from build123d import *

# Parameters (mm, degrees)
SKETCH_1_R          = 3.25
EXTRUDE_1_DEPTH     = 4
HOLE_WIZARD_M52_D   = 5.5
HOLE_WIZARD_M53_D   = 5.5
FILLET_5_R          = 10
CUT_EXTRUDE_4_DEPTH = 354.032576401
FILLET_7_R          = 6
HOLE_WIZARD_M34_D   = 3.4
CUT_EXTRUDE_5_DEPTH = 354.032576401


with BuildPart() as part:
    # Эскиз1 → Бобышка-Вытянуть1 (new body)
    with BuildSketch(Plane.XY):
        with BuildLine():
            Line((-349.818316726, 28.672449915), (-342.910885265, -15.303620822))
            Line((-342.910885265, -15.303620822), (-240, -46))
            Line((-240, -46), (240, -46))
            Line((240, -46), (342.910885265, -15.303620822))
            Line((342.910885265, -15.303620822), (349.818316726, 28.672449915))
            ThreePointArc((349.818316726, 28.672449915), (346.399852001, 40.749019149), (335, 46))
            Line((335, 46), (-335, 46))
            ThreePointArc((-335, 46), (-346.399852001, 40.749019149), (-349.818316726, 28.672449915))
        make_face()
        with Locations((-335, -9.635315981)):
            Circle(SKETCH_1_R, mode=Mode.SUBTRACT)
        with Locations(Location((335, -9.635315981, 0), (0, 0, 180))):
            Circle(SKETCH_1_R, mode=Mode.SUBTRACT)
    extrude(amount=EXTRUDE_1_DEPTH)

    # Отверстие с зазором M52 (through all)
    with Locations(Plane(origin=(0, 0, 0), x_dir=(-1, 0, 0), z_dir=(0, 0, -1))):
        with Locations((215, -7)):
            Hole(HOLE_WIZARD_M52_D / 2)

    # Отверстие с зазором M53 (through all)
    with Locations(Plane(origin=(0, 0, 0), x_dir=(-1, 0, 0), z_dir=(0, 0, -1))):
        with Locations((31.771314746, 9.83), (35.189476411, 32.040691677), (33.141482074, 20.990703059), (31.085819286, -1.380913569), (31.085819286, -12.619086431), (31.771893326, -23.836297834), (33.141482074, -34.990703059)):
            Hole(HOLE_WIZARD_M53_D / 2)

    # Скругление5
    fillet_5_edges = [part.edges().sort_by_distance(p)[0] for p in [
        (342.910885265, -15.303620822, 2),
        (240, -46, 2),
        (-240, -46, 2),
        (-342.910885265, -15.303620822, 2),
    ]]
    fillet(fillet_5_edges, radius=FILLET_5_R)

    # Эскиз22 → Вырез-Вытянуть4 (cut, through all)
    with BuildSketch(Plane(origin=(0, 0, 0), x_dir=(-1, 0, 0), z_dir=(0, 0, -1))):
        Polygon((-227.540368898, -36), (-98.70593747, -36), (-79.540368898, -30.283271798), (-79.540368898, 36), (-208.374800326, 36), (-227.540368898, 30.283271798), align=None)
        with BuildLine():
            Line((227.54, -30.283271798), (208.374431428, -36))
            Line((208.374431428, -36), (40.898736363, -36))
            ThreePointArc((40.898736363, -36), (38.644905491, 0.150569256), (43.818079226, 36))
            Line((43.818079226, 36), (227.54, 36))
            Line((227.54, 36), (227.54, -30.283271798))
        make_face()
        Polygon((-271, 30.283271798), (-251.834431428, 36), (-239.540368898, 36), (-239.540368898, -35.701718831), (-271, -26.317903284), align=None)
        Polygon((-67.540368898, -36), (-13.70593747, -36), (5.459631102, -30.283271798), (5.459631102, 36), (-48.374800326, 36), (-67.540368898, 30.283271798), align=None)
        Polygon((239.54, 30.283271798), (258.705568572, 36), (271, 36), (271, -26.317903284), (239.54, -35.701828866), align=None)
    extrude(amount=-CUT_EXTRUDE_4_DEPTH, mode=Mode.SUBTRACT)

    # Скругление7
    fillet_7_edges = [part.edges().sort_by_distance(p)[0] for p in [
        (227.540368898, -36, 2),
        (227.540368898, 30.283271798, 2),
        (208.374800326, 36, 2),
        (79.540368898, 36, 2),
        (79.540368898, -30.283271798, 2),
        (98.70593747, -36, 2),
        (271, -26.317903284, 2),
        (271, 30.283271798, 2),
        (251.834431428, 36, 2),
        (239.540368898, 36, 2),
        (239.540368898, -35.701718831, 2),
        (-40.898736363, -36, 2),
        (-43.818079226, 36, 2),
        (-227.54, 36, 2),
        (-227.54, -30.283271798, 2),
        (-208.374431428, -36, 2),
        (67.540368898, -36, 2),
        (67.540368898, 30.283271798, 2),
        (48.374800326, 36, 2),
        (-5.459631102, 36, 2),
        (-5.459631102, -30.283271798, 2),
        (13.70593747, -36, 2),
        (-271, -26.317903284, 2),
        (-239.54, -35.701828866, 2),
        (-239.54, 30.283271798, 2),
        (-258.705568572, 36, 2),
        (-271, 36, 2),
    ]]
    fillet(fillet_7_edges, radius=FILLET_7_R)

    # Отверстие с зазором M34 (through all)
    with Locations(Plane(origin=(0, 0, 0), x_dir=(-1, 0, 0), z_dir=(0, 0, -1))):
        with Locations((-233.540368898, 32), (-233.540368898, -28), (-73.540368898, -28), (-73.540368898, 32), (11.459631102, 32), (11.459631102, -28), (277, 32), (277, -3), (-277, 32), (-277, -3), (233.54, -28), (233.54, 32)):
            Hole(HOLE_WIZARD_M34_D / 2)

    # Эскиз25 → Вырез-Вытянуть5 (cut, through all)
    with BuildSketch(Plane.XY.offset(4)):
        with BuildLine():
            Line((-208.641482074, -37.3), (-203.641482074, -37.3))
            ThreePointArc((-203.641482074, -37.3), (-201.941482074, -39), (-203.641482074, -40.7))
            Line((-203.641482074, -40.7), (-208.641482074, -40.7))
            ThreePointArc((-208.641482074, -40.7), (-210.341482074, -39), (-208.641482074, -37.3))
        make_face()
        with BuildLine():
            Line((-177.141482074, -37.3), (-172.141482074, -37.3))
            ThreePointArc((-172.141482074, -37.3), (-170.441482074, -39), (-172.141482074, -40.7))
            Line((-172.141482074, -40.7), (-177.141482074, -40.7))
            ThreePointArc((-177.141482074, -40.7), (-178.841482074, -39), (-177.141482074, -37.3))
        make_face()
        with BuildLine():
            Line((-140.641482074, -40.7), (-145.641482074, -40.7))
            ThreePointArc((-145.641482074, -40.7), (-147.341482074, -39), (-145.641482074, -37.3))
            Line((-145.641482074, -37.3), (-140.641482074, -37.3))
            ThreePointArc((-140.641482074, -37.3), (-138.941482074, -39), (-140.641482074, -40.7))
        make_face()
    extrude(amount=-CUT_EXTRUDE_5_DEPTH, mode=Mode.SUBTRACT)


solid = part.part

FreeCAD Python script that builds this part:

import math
import FreeCAD as App
import Part
import Sketcher
from FreeCAD import Vector


def edges_at(feature, points):
    """Names of the edges that pass closest to the given points."""
    edges = feature.Shape.Edges
    near = lambda p: min(range(len(edges)), key=lambda i: edges[i].distToShape(Part.Vertex(*p))[0])
    return sorted({f"Edge{near(p) + 1}" for p in points})


def add_polygon(sketch, points):
    """Adds a closed chain of lines whose ends are joined by coincident constraints."""
    first, n = sketch.GeometryCount, len(points)
    for a, b in zip(points, points[1:] + points[:1]):
        sketch.addGeometry(Part.LineSegment(App.Vector(*a, 0), App.Vector(*b, 0)), False)
    for i in range(n):
        sketch.addConstraint(Sketcher.Constraint("Coincident", first + i, 2, first + (i + 1) % n, 1))

doc = App.newDocument("Part")
body = doc.addObject("PartDesign::Body", "Body")

sketch1 = body.newObject("Sketcher::SketchObject", "Sketch")
sketch1.AttachmentSupport = (doc.getObject("XY_Plane"), [""])
sketch1.MapMode = "FlatFace"
sketch1.addGeometry(Part.LineSegment(Vector(-349.8, 28.7, 0), Vector(-342.9, -15.3, 0)), False)
sketch1.addGeometry(Part.LineSegment(Vector(-342.9, -15.3, 0), Vector(-240, -46, 0)), False)
sketch1.addGeometry(Part.LineSegment(Vector(-240, -46, 0), Vector(240, -46, 0)), False)
sketch1.addGeometry(Part.LineSegment(Vector(240, -46, 0), Vector(342.9, -15.3, 0)), False)
sketch1.addGeometry(Part.LineSegment(Vector(342.9, -15.3, 0), Vector(349.8, 28.7, 0)), False)
sketch1.addGeometry(Part.ArcOfCircle(Part.Circle(Vector(335, 31, 0), Vector(0, 0, 1), 15), math.radians(-9), math.radians(90)), False)
sketch1.addGeometry(Part.LineSegment(Vector(335, 46, 0), Vector(-335, 46, 0)), False)
sketch1.addGeometry(Part.ArcOfCircle(Part.Circle(Vector(-335, 31, 0), Vector(0, 0, 1), 15), math.radians(90), math.radians(189)), False)
sketch1.addGeometry(Part.Circle(Vector(-335, -9.6, 0), Vector(0, 0, 1), 3.2), False)
sketch1.addGeometry(Part.Circle(Vector(335, -9.6, 0), Vector(0, 0, 1), 3.2), False)
sketch1.addConstraint(Sketcher.Constraint("Coincident", 0, 2, 1, 1))
sketch1.addConstraint(Sketcher.Constraint("Coincident", 1, 2, 2, 1))
sketch1.addConstraint(Sketcher.Constraint("Coincident", 2, 2, 3, 1))
sketch1.addConstraint(Sketcher.Constraint("Coincident", 3, 2, 4, 1))
sketch1.addConstraint(Sketcher.Constraint("Tangent", 4, 2, 5, 1))
sketch1.addConstraint(Sketcher.Constraint("Tangent", 5, 2, 6, 1))
sketch1.addConstraint(Sketcher.Constraint("Tangent", 6, 2, 7, 1))
sketch1.addConstraint(Sketcher.Constraint("Tangent", 7, 2, 0, 1))
sketch1.addConstraint(Sketcher.Constraint("Horizontal", 2))
sketch1.addConstraint(Sketcher.Constraint("Horizontal", 6))
sketch1.addConstraint(Sketcher.Constraint("Equal", 5, 7))
sketch1.addConstraint(Sketcher.Constraint("Equal", 8, 9))
sketch1.addConstraint(Sketcher.Constraint("Symmetric", 8, 3, 9, 3, -2))
sketch1.addConstraint(Sketcher.Constraint("Symmetric", 0, 2, 3, 2, -2))
sketch1.addConstraint(Sketcher.Constraint("Horizontal", 4, 2, 7, 2))
sketch1.addConstraint(Sketcher.Constraint("Vertical", 7, 3, 8, 3))
sketch1.addConstraint(Sketcher.Constraint("Equal", 1, 3))
sketch1.addConstraint(Sketcher.Constraint("Radius", 5, 15.0))
sketch1.addConstraint(Sketcher.Constraint("Diameter", 8, 6.5))
sketch1.addConstraint(Sketcher.Constraint("DistanceX", 2, 1, 2, 2, 480.0))
sketch1.addConstraint(Sketcher.Constraint("DistanceX", 6, 2, 6, 1, 670.0))
sketch1.addConstraint(Sketcher.Constraint("DistanceY", -1, 1, 5, 3, 31.0))
sketch1.addConstraint(Sketcher.Constraint("DistanceY", 1, 2, -1, 1, 46.0))
sketch1.addConstraint(Sketcher.Constraint("Distance", 0, 44.515249))
sketch1.addConstraint(Sketcher.Constraint("DistanceY", 0, 2, -1, 1, 15.303621))
sketch1.addConstraint(Sketcher.Constraint("DistanceY", 8, 3, -1, 1, 9.635316))
pad1 = body.newObject("PartDesign::Pad", "Pad")
pad1.Profile = sketch1
pad1.Length = 4

sketch2 = body.newObject("Sketcher::SketchObject", "Sketch001")
sketch2.AttachmentSupport = (doc.getObject("XY_Plane"), [""])
sketch2.MapMode = "FlatFace"
sketch2.addGeometry(Part.Circle(Vector(-215, -7, 0), Vector(0, 0, 1), 2.8), False)
sketch2.addConstraint(Sketcher.Constraint("Diameter", 0, 5.5))
sketch2.addConstraint(Sketcher.Constraint("DistanceX", 0, 3, -1, 1, 215.0))
sketch2.addConstraint(Sketcher.Constraint("DistanceY", 0, 3, -1, 1, 7.0))
doc.recompute()
hole = body.newObject("PartDesign::Hole", "Hole")
hole.Profile = sketch2
hole.ThreadType = "None"
hole.Diameter = 5.5
hole.DepthType = "ThroughAll"
hole.Reversed = True

sketch3 = body.newObject("Sketcher::SketchObject", "Sketch002")
sketch3.AttachmentSupport = (doc.getObject("XY_Plane"), [""])
sketch3.MapMode = "FlatFace"
sketch3.addGeometry(Part.Circle(Vector(-31.8, 9.8, 0), Vector(0, 0, 1), 2.8), False)
sketch3.addGeometry(Part.Circle(Vector(-35.2, 32, 0), Vector(0, 0, 1), 2.8), False)
sketch3.addGeometry(Part.Circle(Vector(-33.1, 21, 0), Vector(0, 0, 1), 2.8), False)
sketch3.addGeometry(Part.Circle(Vector(-31.1, -1.4, 0), Vector(0, 0, 1), 2.8), False)
sketch3.addGeometry(Part.Circle(Vector(-31.1, -12.6, 0), Vector(0, 0, 1), 2.8), False)
sketch3.addGeometry(Part.Circle(Vector(-31.8, -23.8, 0), Vector(0, 0, 1), 2.8), False)
sketch3.addGeometry(Part.Circle(Vector(-33.1, -35, 0), Vector(0, 0, 1), 2.8), False)
sketch3.addConstraint(Sketcher.Constraint("Equal", 0, 1))
sketch3.addConstraint(Sketcher.Constraint("Equal", 1, 2))
sketch3.addConstraint(Sketcher.Constraint("Equal", 2, 3))
sketch3.addConstraint(Sketcher.Constraint("Equal", 3, 4))
sketch3.addConstraint(Sketcher.Constraint("Equal", 4, 5))
sketch3.addConstraint(Sketcher.Constraint("Equal", 5, 6))
sketch3.addConstraint(Sketcher.Constraint("Vertical", 3, 3, 4, 3))
sketch3.addConstraint(Sketcher.Constraint("Vertical", 2, 3, 6, 3))
sketch3.addConstraint(Sketcher.Constraint("Diameter", 0, 5.5))
sketch3.addConstraint(Sketcher.Constraint("DistanceY", -1, 1, 0, 3, 9.83))
sketch3.addConstraint(Sketcher.Constraint("DistanceY", 5, 3, 2, 3, 44.827001))
sketch3.addConstraint(Sketcher.Constraint("DistanceY", -1, 1, 1, 3, 32.040692))
sketch3.addConstraint(Sketcher.Constraint("DistanceX", 3, 3, -1, 1, 31.085819))
sketch3.addConstraint(Sketcher.Constraint("DistanceX", 1, 3, 0, 3, 3.418162))
sketch3.addConstraint(Sketcher.Constraint("DistanceY", 2, 3, 1, 3, 11.049989))
sketch3.addConstraint(Sketcher.Constraint("DistanceY", 4, 3, 2, 3, 33.609789))
sketch3.addConstraint(Sketcher.Constraint("DistanceX", 5, 3, 0, 3, 0.000579))
sketch3.addConstraint(Sketcher.Constraint("DistanceX", 2, 3, 5, 3, 1.369589))
sketch3.addConstraint(Sketcher.Constraint("DistanceY", 6, 3, 3, 3, 33.609789))
sketch3.addConstraint(Sketcher.Constraint("DistanceX", 0, 3, -1, 1, 31.771315))
sketch3.addConstraint(Sketcher.Constraint("DistanceY", 3, 3, -1, 1, 1.380914))
doc.recompute()
hole2 = body.newObject("PartDesign::Hole", "Hole001")
hole2.Profile = sketch3
hole2.ThreadType = "None"
hole2.Diameter = 5.5
hole2.DepthType = "ThroughAll"
hole2.Reversed = True
doc.recompute()

fillet = body.newObject("PartDesign::Fillet", "Fillet")
fillet.Base = (hole2, edges_at(hole2, [
    (342.911, -15.304, 2),
    (240, -46, 2),
    (-240, -46, 2),
    (-342.911, -15.304, 2),
]))
fillet.Radius = 10

sketch4 = body.newObject("Sketcher::SketchObject", "Sketch003")
sketch4.AttachmentSupport = (doc.getObject("XY_Plane"), [""])
sketch4.MapMode = "FlatFace"
add_polygon(sketch4, [(228, -36), (99, -36), (80, -30), (80, 36), (208, 36), (228, 30)])
sketch4.addGeometry(Part.LineSegment(Vector(-208, -36, 0), Vector(-228, -30, 0)), False)
sketch4.addGeometry(Part.LineSegment(Vector(-228, -30, 0), Vector(-228, 36, 0)), False)
sketch4.addGeometry(Part.LineSegment(Vector(-228, 36, 0), Vector(-44, 36, 0)), False)
sketch4.addGeometry(Part.ArcOfCircle(Part.Circle(Vector(-215, -7, 0), Vector(0, 0, 1), 176), math.radians(-9), math.radians(14)), False)
sketch4.addGeometry(Part.LineSegment(Vector(-41, -36, 0), Vector(-208, -36, 0)), False)
add_polygon(sketch4, [(252, 36), (271, 30), (271, -26), (240, -36), (240, 36)])
add_polygon(sketch4, [(68, -36), (14, -36), (-5, -30), (-5, 36), (48, 36), (68, 30)])
add_polygon(sketch4, [(-259, 36), (-240, 30), (-240, -36), (-271, -26), (-271, 36)])
sketch4.addConstraint(Sketcher.Constraint("Coincident", 6, 2, 7, 1))
sketch4.addConstraint(Sketcher.Constraint("Coincident", 7, 2, 8, 1))
sketch4.addConstraint(Sketcher.Constraint("Coincident", 8, 2, 9, 2))
sketch4.addConstraint(Sketcher.Constraint("Coincident", 9, 1, 10, 1))
sketch4.addConstraint(Sketcher.Constraint("Coincident", 10, 2, 6, 1))
sketch4.addConstraint(Sketcher.Constraint("Horizontal", 0))
sketch4.addConstraint(Sketcher.Constraint("Vertical", 2))
sketch4.addConstraint(Sketcher.Constraint("Horizontal", 3))
sketch4.addConstraint(Sketcher.Constraint("Vertical", 5))
sketch4.addConstraint(Sketcher.Constraint("Vertical", 7))
sketch4.addConstraint(Sketcher.Constraint("Horizontal", 8))
sketch4.addConstraint(Sketcher.Constraint("Horizontal", 10))
sketch4.addConstraint(Sketcher.Constraint("Vertical", 12))
sketch4.addConstraint(Sketcher.Constraint("Vertical", 14))
sketch4.addConstraint(Sketcher.Constraint("Horizontal", 15))
sketch4.addConstraint(Sketcher.Constraint("Horizontal", 16))
sketch4.addConstraint(Sketcher.Constraint("Vertical", 18))
sketch4.addConstraint(Sketcher.Constraint("Horizontal", 19))
sketch4.addConstraint(Sketcher.Constraint("Vertical", 21))
sketch4.addConstraint(Sketcher.Constraint("Vertical", 23))
sketch4.addConstraint(Sketcher.Constraint("Vertical", 25))
sketch4.addConstraint(Sketcher.Constraint("Horizontal", 26))
sketch4.addConstraint(Sketcher.Constraint("Symmetric", 12, 2, 24, 2, -2))
sketch4.addConstraint(Sketcher.Constraint("Parallel", 1, 4))
sketch4.addConstraint(Sketcher.Constraint("Parallel", 4, 6))
sketch4.addConstraint(Sketcher.Constraint("Parallel", 6, 11))
sketch4.addConstraint(Sketcher.Constraint("Parallel", 11, 17))
sketch4.addConstraint(Sketcher.Constraint("Parallel", 17, 20))
sketch4.addConstraint(Sketcher.Constraint("Parallel", 20, 22))
sketch4.addConstraint(Sketcher.Constraint("Parallel", 22, 24))
sketch4.addConstraint(Sketcher.Constraint("Horizontal", 1, 2, 6, 2))
sketch4.addConstraint(Sketcher.Constraint("Horizontal", 3, 2, 7, 2))
sketch4.addConstraint(Sketcher.Constraint("Horizontal", 4, 2, 11, 2))
sketch4.addConstraint(Sketcher.Constraint("Horizontal", 8, 2, 14, 2))
sketch4.addConstraint(Sketcher.Constraint("Horizontal", 10, 2, 16, 2))
sketch4.addConstraint(Sketcher.Constraint("Horizontal", 6, 2, 17, 2))
sketch4.addConstraint(Sketcher.Constraint("Horizontal", 15, 2, 18, 2))
sketch4.addConstraint(Sketcher.Constraint("Horizontal", 11, 2, 20, 2))
sketch4.addConstraint(Sketcher.Constraint("Horizontal", 20, 2, 22, 2))
sketch4.addConstraint(Sketcher.Constraint("Horizontal", 19, 2, 25, 2))
sketch4.addConstraint(Sketcher.Constraint("Equal", 0, 3))
sketch4.addConstraint(Sketcher.Constraint("Equal", 16, 19))
sketch4.addConstraint(Sketcher.Constraint("Radius", 9, 176.5))
sketch4.addConstraint(Sketcher.Constraint("Distance", 1, 20.0))
sketch4.addConstraint(Sketcher.Constraint("DistanceX", 9, 3, -1, 1, 215.0))
sketch4.addConstraint(Sketcher.Constraint("DistanceY", 9, 3, -1, 1, 7.0))
sketch4.addConstraint(Sketcher.Constraint("DistanceY", 0, 2, -1, 1, 36.0))
sketch4.addConstraint(Sketcher.Constraint("DistanceY", -1, 1, 2, 2, 36.0))
sketch4.addConstraint(Sketcher.Constraint("DistanceX", -1, 1, 11, 2, 271.0))
sketch4.addConstraint(Sketcher.Constraint("DistanceX", 2, 2, 4, 2, 148.0))
sketch4.addConstraint(Sketcher.Constraint("DistanceX", 5, 2, 13, 2, 12.0))
sketch4.addConstraint(Sketcher.Constraint("DistanceX", 16, 2, 0, 2, 85.0))
sketch4.addConstraint(Sketcher.Constraint("DistanceX", 20, 2, 2, 2, 12.0))
sketch4.addConstraint(Sketcher.Constraint("DistanceX", 22, 2, 7, 2, 12.0))
sketch4.addConstraint(Sketcher.Constraint("DistanceX", 6, 2, -1, 1, 227.54))
sketch4.addConstraint(Sketcher.Constraint("DistanceY", 23, 2, 23, 1, 65.985101))
sketch4.addConstraint(Sketcher.Constraint("DistanceX", 0, 2, 0, 1, 128.834431))
sketch4.addConstraint(Sketcher.Constraint("DistanceY", 14, 1, 14, 2, 71.701719))
sketch4.addConstraint(Sketcher.Constraint("DistanceX", -1, 1, 3, 2, 208.3748))
pocket1 = body.newObject("PartDesign::Pocket", "Pocket")
pocket1.Profile = sketch4
pocket1.Type = "ThroughAll"
pocket1.Reversed = True
doc.recompute()

fillet2 = body.newObject("PartDesign::Fillet", "Fillet001")
fillet2.Base = (pocket1, edges_at(pocket1, [
    (227.54, -36, 2),
    (227.54, 30.283, 2),
    (208.375, 36, 2),
    (79.54, 36, 2),
    (79.54, -30.283, 2),
    (98.706, -36, 2),
    (271, -26.318, 2),
    (271, 30.283, 2),
    (251.834, 36, 2),
    (239.54, 36, 2),
    (239.54, -35.702, 2),
    (-40.899, -36, 2),
    (-43.818, 36, 2),
    (-227.54, 36, 2),
    (-227.54, -30.283, 2),
    (-208.374, -36, 2),
    (67.54, -36, 2),
    (67.54, 30.283, 2),
    (48.375, 36, 2),
    (-5.46, 36, 2),
    (-5.46, -30.283, 2),
    (13.706, -36, 2),
    (-271, -26.318, 2),
    (-239.54, -35.702, 2),
    (-239.54, 30.283, 2),
    (-258.706, 36, 2),
    (-271, 36, 2),
]))
fillet2.Radius = 6

sketch5 = body.newObject("Sketcher::SketchObject", "Sketch004")
sketch5.AttachmentSupport = (doc.getObject("XY_Plane"), [""])
sketch5.MapMode = "FlatFace"
sketch5.addGeometry(Part.Circle(Vector(233.5, 32, 0), Vector(0, 0, 1), 1.7), False)
sketch5.addGeometry(Part.Circle(Vector(233.5, -28, 0), Vector(0, 0, 1), 1.7), False)
sketch5.addGeometry(Part.Circle(Vector(73.5, -28, 0), Vector(0, 0, 1), 1.7), False)
sketch5.addGeometry(Part.Circle(Vector(73.5, 32, 0), Vector(0, 0, 1), 1.7), False)
sketch5.addGeometry(Part.Circle(Vector(-11.5, 32, 0), Vector(0, 0, 1), 1.7), False)
sketch5.addGeometry(Part.Circle(Vector(-11.5, -28, 0), Vector(0, 0, 1), 1.7), False)
sketch5.addGeometry(Part.Circle(Vector(-277, 32, 0), Vector(0, 0, 1), 1.7), False)
sketch5.addGeometry(Part.Circle(Vector(-277, -3, 0), Vector(0, 0, 1), 1.7), False)
sketch5.addGeometry(Part.Circle(Vector(277, 32, 0), Vector(0, 0, 1), 1.7), False)
sketch5.addGeometry(Part.Circle(Vector(277, -3, 0), Vector(0, 0, 1), 1.7), False)
sketch5.addGeometry(Part.Circle(Vector(-233.5, -28, 0), Vector(0, 0, 1), 1.7), False)
sketch5.addGeometry(Part.Circle(Vector(-233.5, 32, 0), Vector(0, 0, 1), 1.7), False)
sketch5.addConstraint(Sketcher.Constraint("Equal", 0, 1))
sketch5.addConstraint(Sketcher.Constraint("Equal", 1, 2))
sketch5.addConstraint(Sketcher.Constraint("Equal", 2, 3))
sketch5.addConstraint(Sketcher.Constraint("Equal", 3, 4))
sketch5.addConstraint(Sketcher.Constraint("Equal", 4, 5))
sketch5.addConstraint(Sketcher.Constraint("Equal", 5, 6))
sketch5.addConstraint(Sketcher.Constraint("Equal", 6, 7))
sketch5.addConstraint(Sketcher.Constraint("Equal", 7, 8))
sketch5.addConstraint(Sketcher.Constraint("Equal", 8, 9))
sketch5.addConstraint(Sketcher.Constraint("Equal", 9, 10))
sketch5.addConstraint(Sketcher.Constraint("Equal", 10, 11))
sketch5.addConstraint(Sketcher.Constraint("Symmetric", 6, 3, 8, 3, -2))
sketch5.addConstraint(Sketcher.Constraint("Symmetric", 7, 3, 9, 3, -2))
sketch5.addConstraint(Sketcher.Constraint("Horizontal", 1, 3, 2, 3))
sketch5.addConstraint(Sketcher.Constraint("Horizontal", 0, 3, 3, 3))
sketch5.addConstraint(Sketcher.Constraint("Horizontal", 3, 3, 4, 3))
sketch5.addConstraint(Sketcher.Constraint("Horizontal", 2, 3, 5, 3))
sketch5.addConstraint(Sketcher.Constraint("Horizontal", 4, 3, 6, 3))
sketch5.addConstraint(Sketcher.Constraint("Horizontal", 5, 3, 10, 3))
sketch5.addConstraint(Sketcher.Constraint("Horizontal", 8, 3, 11, 3))
sketch5.addConstraint(Sketcher.Constraint("Vertical", 0, 3, 1, 3))
sketch5.addConstraint(Sketcher.Constraint("Vertical", 2, 3, 3, 3))
sketch5.addConstraint(Sketcher.Constraint("Vertical", 4, 3, 5, 3))
sketch5.addConstraint(Sketcher.Constraint("Vertical", 6, 3, 7, 3))
sketch5.addConstraint(Sketcher.Constraint("Vertical", 10, 3, 11, 3))
sketch5.addConstraint(Sketcher.Constraint("Diameter", 0, 3.4))
sketch5.addConstraint(Sketcher.Constraint("DistanceY", -1, 1, 0, 3, 32.0))
sketch5.addConstraint(Sketcher.Constraint("DistanceY", 1, 3, -1, 1, 28.0))
sketch5.addConstraint(Sketcher.Constraint("DistanceX", 6, 3, -1, 1, 277.0))
sketch5.addConstraint(Sketcher.Constraint("DistanceY", 7, 3, -1, 1, 3.0))
sketch5.addConstraint(Sketcher.Constraint("DistanceX", 2, 3, 1, 3, 160.0))
sketch5.addConstraint(Sketcher.Constraint("DistanceX", 4, 3, 3, 3, 85.0))
sketch5.addConstraint(Sketcher.Constraint("DistanceX", 10, 3, -1, 1, 233.54))
sketch5.addConstraint(Sketcher.Constraint("DistanceX", -1, 1, 0, 3, 233.540369))
doc.recompute()
hole3 = body.newObject("PartDesign::Hole", "Hole002")
hole3.Profile = sketch5
hole3.ThreadType = "None"
hole3.Diameter = 3.4
hole3.DepthType = "ThroughAll"
hole3.Reversed = True

sketch6 = body.newObject("Sketcher::SketchObject", "Sketch005")
sketch6.AttachmentSupport = (doc.getObject("XY_Plane"), [""])
sketch6.MapMode = "FlatFace"
sketch6.AttachmentOffset = App.Placement(Vector(0, 0, 4), App.Rotation())
sketch6.addGeometry(Part.LineSegment(Vector(-203.6, -37.3, 0), Vector(-208.6, -37.3, 0)), False)
sketch6.addGeometry(Part.ArcOfCircle(Part.Circle(Vector(-208.6, -39, 0), Vector(0, 0, 1), 1.7), math.radians(90), math.radians(270)), False)
sketch6.addGeometry(Part.LineSegment(Vector(-208.6, -40.7, 0), Vector(-203.6, -40.7, 0)), False)
sketch6.addGeometry(Part.ArcOfCircle(Part.Circle(Vector(-203.6, -39, 0), Vector(0, 0, 1), 1.7), math.radians(-90), math.radians(90)), False)
sketch6.addGeometry(Part.LineSegment(Vector(-172.1, -37.3, 0), Vector(-177.1, -37.3, 0)), False)
sketch6.addGeometry(Part.ArcOfCircle(Part.Circle(Vector(-177.1, -39, 0), Vector(0, 0, 1), 1.7), math.radians(90), math.radians(270)), False)
sketch6.addGeometry(Part.LineSegment(Vector(-177.1, -40.7, 0), Vector(-172.1, -40.7, 0)), False)
sketch6.addGeometry(Part.ArcOfCircle(Part.Circle(Vector(-172.1, -39, 0), Vector(0, 0, 1), 1.7), math.radians(-90), math.radians(90)), False)
sketch6.addGeometry(Part.LineSegment(Vector(-145.6, -40.7, 0), Vector(-140.6, -40.7, 0)), False)
sketch6.addGeometry(Part.ArcOfCircle(Part.Circle(Vector(-140.6, -39, 0), Vector(0, 0, 1), 1.7), math.radians(-90), math.radians(90)), False)
sketch6.addGeometry(Part.LineSegment(Vector(-140.6, -37.3, 0), Vector(-145.6, -37.3, 0)), False)
sketch6.addGeometry(Part.ArcOfCircle(Part.Circle(Vector(-145.6, -39, 0), Vector(0, 0, 1), 1.7), math.radians(90), math.radians(270)), False)
sketch6.addConstraint(Sketcher.Constraint("Tangent", 0, 2, 1, 1))
sketch6.addConstraint(Sketcher.Constraint("Tangent", 1, 2, 2, 1))
sketch6.addConstraint(Sketcher.Constraint("Tangent", 2, 2, 3, 1))
sketch6.addConstraint(Sketcher.Constraint("Tangent", 3, 2, 0, 1))
sketch6.addConstraint(Sketcher.Constraint("Tangent", 4, 2, 5, 1))
sketch6.addConstraint(Sketcher.Constraint("Tangent", 5, 2, 6, 1))
sketch6.addConstraint(Sketcher.Constraint("Tangent", 6, 2, 7, 1))
sketch6.addConstraint(Sketcher.Constraint("Tangent", 7, 2, 4, 1))
sketch6.addConstraint(Sketcher.Constraint("Tangent", 8, 2, 9, 1))
sketch6.addConstraint(Sketcher.Constraint("Tangent", 9, 2, 10, 1))
sketch6.addConstraint(Sketcher.Constraint("Tangent", 10, 2, 11, 1))
sketch6.addConstraint(Sketcher.Constraint("Tangent", 11, 2, 8, 1))
sketch6.addConstraint(Sketcher.Constraint("Horizontal", 0))
sketch6.addConstraint(Sketcher.Constraint("Horizontal", 2))
sketch6.addConstraint(Sketcher.Constraint("Horizontal", 4))
sketch6.addConstraint(Sketcher.Constraint("Horizontal", 6))
sketch6.addConstraint(Sketcher.Constraint("Horizontal", 8))
sketch6.addConstraint(Sketcher.Constraint("Horizontal", 10))
sketch6.addConstraint(Sketcher.Constraint("Equal", 3, 5))
sketch6.addConstraint(Sketcher.Constraint("Equal", 7, 9))
sketch6.addConstraint(Sketcher.Constraint("Horizontal", 3, 3, 5, 3))
sketch6.addConstraint(Sketcher.Constraint("Horizontal", 7, 3, 9, 3))
sketch6.addConstraint(Sketcher.Constraint("Equal", 2, 4))
sketch6.addConstraint(Sketcher.Constraint("Equal", 6, 8))
sketch6.addConstraint(Sketcher.Constraint("Radius", 1, 1.7))
sketch6.addConstraint(Sketcher.Constraint("DistanceX", 0, 2, 0, 1, 5.0))
sketch6.addConstraint(Sketcher.Constraint("DistanceY", 1, 3, -1, 1, 39.0))
sketch6.addConstraint(Sketcher.Constraint("DistanceX", 3, 3, 9, 3, 63.0))
sketch6.addConstraint(Sketcher.Constraint("DistanceX", 3, 3, 5, 3, 26.5))
sketch6.addConstraint(Sketcher.Constraint("DistanceX", 1, 3, -1, 1, 208.641482))
pocket2 = body.newObject("PartDesign::Pocket", "Pocket001")
pocket2.Profile = sketch6
pocket2.Type = "ThroughAll"

doc.recompute()
